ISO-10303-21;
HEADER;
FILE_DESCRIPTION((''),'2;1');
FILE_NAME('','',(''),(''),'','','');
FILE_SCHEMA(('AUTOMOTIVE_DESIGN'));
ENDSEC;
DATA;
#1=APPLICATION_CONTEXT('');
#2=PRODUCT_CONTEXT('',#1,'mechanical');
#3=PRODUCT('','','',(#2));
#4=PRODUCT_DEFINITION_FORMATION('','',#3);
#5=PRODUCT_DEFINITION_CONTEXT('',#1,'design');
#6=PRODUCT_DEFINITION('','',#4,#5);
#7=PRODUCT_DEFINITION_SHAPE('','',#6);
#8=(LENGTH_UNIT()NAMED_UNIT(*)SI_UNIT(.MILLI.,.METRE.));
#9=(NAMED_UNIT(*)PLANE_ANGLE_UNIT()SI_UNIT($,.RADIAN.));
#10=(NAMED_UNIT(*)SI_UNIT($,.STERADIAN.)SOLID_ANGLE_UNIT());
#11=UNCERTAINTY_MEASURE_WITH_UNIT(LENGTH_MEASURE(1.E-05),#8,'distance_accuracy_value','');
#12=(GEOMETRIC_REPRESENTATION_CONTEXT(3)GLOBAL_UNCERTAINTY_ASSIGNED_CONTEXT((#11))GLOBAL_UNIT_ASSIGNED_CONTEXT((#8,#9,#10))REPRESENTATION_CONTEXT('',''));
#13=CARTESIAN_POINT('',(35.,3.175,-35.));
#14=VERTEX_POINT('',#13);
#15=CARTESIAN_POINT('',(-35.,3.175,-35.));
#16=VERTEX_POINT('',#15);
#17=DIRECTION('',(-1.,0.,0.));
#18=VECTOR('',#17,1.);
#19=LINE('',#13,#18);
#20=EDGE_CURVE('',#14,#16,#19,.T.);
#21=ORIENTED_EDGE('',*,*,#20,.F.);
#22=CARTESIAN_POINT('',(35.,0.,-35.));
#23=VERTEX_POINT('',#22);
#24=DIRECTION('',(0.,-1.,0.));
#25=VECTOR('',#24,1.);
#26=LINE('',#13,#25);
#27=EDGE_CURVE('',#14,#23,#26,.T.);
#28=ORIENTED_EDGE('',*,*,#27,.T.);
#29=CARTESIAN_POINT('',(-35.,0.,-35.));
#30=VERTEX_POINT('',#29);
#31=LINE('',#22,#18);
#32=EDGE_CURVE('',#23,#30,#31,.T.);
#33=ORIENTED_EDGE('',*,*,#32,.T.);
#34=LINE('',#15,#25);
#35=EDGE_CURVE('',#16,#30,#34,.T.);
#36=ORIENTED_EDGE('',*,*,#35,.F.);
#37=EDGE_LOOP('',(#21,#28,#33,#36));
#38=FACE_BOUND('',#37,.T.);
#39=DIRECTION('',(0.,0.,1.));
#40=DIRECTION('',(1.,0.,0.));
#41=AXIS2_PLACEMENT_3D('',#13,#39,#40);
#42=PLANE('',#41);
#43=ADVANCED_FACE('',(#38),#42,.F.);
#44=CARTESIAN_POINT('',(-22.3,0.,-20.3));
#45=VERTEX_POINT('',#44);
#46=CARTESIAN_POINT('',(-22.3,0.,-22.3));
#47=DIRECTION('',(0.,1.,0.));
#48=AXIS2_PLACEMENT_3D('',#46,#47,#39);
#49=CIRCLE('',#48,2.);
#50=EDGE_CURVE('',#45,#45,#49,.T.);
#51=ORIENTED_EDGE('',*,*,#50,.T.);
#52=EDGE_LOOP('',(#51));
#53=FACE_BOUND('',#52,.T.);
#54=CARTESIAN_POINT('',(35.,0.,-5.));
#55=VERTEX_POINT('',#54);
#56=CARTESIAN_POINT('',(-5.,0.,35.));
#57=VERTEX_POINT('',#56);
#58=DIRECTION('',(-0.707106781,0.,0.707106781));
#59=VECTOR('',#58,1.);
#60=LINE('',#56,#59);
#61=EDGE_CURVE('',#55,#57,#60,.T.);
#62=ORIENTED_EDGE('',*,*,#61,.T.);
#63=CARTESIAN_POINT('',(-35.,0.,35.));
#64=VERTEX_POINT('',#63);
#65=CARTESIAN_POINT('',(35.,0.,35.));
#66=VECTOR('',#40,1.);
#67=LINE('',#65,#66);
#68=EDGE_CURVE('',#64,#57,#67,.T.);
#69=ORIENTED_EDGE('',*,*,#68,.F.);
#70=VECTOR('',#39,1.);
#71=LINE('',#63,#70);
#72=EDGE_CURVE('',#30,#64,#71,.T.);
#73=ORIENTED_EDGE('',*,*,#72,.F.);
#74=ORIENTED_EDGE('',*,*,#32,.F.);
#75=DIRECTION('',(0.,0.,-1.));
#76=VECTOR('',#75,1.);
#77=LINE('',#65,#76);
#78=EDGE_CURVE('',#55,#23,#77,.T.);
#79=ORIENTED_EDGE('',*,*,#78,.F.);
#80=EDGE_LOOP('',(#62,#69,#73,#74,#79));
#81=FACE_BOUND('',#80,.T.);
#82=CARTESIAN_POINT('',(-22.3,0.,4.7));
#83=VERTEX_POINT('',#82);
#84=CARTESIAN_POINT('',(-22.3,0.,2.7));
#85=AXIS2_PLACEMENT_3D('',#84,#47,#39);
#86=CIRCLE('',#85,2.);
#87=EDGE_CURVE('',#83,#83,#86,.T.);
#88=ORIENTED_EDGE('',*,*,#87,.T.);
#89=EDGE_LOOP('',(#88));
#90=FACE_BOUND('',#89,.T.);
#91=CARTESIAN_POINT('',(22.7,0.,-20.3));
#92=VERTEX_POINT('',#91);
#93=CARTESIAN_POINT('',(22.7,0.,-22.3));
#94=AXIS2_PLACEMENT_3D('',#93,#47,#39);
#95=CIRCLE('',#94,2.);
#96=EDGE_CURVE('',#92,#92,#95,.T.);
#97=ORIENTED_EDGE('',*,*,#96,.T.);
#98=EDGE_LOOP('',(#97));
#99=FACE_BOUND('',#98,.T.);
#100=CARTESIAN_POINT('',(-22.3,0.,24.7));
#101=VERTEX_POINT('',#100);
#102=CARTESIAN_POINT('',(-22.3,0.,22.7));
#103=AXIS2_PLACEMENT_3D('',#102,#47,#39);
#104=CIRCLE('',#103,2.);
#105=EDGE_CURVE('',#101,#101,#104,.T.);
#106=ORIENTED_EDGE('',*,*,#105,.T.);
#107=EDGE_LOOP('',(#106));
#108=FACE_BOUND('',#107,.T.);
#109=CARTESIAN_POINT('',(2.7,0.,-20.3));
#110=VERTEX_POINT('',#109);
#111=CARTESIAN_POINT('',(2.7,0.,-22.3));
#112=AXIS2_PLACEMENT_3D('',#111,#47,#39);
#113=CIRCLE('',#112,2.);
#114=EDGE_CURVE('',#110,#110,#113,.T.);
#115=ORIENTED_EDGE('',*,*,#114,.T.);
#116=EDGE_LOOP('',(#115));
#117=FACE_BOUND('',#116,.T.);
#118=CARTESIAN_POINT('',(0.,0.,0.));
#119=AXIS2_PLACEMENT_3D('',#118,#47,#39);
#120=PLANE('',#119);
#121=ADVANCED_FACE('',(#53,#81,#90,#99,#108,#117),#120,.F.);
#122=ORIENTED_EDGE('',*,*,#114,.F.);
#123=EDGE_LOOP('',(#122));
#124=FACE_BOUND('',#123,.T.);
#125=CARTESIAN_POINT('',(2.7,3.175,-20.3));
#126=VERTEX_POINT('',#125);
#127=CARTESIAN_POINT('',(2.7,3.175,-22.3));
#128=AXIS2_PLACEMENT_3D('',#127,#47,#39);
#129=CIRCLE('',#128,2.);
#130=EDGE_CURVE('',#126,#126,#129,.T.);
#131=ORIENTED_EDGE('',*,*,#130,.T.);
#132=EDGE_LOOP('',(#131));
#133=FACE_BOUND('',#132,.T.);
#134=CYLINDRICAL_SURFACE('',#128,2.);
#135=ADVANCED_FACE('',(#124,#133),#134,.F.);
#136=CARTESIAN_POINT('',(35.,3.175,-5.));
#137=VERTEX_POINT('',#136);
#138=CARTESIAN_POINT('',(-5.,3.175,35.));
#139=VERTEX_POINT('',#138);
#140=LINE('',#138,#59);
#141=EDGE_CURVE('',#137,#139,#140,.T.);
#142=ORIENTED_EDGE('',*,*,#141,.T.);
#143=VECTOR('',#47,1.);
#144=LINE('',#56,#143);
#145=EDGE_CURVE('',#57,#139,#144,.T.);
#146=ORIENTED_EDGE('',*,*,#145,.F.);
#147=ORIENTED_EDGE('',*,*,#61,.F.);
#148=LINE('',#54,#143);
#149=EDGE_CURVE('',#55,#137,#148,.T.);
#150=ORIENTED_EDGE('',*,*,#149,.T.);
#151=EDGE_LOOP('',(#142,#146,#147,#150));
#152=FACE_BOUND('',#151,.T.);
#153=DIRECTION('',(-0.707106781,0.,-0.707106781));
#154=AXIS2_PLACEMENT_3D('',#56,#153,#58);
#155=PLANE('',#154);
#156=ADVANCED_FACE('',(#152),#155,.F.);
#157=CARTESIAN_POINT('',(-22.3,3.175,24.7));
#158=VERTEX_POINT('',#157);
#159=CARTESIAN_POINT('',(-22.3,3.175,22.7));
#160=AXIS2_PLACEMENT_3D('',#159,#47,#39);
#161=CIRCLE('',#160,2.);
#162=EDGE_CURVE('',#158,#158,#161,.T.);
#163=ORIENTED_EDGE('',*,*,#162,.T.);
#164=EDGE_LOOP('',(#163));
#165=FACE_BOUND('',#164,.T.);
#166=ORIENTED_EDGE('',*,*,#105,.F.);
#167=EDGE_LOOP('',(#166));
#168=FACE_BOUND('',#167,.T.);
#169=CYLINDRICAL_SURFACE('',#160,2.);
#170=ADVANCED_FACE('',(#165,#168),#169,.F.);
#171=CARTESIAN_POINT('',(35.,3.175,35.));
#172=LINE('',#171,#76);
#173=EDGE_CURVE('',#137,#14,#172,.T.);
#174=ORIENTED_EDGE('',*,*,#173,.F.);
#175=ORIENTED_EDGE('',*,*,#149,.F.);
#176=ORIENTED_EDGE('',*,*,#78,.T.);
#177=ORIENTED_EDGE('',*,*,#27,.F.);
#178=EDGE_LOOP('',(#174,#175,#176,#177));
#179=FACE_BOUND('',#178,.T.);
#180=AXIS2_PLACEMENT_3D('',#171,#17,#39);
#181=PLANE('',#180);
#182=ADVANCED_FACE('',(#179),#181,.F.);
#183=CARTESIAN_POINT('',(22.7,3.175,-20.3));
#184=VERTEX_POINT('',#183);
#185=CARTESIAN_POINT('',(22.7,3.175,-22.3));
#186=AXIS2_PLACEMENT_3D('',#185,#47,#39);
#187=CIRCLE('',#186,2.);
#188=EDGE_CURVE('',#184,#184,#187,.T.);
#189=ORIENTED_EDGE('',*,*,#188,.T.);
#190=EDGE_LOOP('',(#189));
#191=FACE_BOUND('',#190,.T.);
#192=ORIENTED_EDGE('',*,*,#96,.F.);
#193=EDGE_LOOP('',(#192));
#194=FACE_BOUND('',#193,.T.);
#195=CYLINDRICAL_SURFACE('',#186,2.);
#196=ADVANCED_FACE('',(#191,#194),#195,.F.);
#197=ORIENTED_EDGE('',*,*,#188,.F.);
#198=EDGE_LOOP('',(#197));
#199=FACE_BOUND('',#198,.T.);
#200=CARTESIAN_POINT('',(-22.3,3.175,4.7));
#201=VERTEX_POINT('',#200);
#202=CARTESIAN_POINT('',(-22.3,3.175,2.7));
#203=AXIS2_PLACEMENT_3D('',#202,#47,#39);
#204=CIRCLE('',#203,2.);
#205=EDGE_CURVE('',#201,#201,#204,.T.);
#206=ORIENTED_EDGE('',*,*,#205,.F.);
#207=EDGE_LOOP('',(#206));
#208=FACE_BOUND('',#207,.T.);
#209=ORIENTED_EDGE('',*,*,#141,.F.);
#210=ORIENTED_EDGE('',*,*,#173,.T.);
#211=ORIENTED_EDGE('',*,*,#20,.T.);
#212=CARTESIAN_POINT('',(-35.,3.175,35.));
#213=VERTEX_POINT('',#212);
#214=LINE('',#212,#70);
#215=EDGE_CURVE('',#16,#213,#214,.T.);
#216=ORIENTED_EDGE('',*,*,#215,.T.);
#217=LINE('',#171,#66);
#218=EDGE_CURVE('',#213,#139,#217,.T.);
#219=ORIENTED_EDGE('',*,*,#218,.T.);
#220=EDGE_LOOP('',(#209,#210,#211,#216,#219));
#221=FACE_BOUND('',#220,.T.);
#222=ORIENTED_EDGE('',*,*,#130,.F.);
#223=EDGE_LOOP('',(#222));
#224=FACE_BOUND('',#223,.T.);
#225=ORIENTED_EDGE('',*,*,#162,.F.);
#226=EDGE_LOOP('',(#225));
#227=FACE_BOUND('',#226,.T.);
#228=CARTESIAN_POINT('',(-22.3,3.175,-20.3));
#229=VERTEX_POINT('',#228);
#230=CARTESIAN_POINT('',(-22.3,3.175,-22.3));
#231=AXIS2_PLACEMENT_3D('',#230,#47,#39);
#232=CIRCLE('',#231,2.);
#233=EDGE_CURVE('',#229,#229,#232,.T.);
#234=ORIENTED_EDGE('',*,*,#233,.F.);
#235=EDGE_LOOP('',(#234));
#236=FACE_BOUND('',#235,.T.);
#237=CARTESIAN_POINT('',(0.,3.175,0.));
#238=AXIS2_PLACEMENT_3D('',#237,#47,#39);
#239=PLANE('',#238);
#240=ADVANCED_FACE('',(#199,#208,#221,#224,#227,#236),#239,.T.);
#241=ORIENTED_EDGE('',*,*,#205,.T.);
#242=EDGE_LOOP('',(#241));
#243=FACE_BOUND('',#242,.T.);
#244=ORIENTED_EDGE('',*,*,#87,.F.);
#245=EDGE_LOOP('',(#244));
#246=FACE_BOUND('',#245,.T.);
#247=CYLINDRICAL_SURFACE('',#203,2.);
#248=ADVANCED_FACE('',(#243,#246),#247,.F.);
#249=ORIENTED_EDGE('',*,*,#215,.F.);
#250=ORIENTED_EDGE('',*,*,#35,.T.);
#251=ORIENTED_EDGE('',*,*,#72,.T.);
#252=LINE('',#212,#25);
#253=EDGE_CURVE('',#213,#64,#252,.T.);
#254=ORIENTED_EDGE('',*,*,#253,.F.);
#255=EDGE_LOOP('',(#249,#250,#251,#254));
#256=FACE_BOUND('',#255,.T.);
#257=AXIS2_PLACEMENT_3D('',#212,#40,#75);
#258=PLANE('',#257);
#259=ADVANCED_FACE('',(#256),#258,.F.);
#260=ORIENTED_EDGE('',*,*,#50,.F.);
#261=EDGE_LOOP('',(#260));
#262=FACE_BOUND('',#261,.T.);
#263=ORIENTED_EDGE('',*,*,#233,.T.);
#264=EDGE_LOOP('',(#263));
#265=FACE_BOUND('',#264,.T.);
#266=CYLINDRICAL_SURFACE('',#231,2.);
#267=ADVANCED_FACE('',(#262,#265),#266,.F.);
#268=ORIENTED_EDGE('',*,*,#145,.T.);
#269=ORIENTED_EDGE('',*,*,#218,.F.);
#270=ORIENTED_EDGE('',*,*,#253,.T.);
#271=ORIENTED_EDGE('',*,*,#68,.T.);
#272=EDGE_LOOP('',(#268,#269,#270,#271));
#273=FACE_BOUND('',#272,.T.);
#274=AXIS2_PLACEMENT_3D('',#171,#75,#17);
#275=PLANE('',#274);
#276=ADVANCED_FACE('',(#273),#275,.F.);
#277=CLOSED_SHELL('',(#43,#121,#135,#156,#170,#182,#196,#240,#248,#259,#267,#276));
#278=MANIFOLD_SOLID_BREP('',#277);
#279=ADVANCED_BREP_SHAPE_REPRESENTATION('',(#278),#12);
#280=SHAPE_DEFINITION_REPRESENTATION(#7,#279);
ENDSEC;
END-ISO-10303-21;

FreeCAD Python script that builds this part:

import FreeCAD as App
import Part
import Sketcher
Q = App.Units.Quantity


def add_polygon(sketch, points):
    """Adds a closed chain of lines whose ends are joined by coincident constraints."""
    first, n = sketch.GeometryCount, len(points)
    for a, b in zip(points, points[1:] + points[:1]):
        sketch.addGeometry(Part.LineSegment(App.Vector(*a, 0), App.Vector(*b, 0)), False)
    for i in range(n):
        sketch.addConstraint(Sketcher.Constraint("Coincident", first + i, 2, first + (i + 1) % n, 1))

doc = App.newDocument("Part")
body = doc.addObject("PartDesign::Body", "Body")

# Sketch on XZ plane
sketch1 = doc.addObject("Sketcher::SketchObject", "Sketch")
body.addObject(sketch1)
sketch1.AttachmentSupport = (doc.XZ_Plane, [""])
sketch1.MapMode = "FlatFace"
add_polygon(sketch1, [(-35, -35), (-35, 35), (35, 35), (35, -35)])  # lines 0-3
sketch1.addConstraint([
    Sketcher.Constraint("Vertical", 0),
    Sketcher.Constraint("Horizontal", 1),
    Sketcher.Constraint("Vertical", 2),
    Sketcher.Constraint("Horizontal", 3),
    Sketcher.Constraint("Symmetric", 0, 2, 2, 2, -1, 1),
    Sketcher.Constraint("Equal", 3, 0),
    Sketcher.Constraint("DistanceX", 1, 1, 1, 2, Q("70 mm")),
])
pad1 = doc.addObject("PartDesign::Pad", "Pad")
body.addObject(pad1)
pad1.Profile = sketch1
pad1.Length = 3.175
pad1.Reversed = True

# Sketch on XZ plane
sketch2 = doc.addObject("Sketcher::SketchObject", "Sketch001")
body.addObject(sketch2)
sketch2.AttachmentSupport = (doc.XZ_Plane, [""])
sketch2.MapMode = "FlatFace"
sketch2.AttachmentOffset = App.Placement(App.Vector(0, 0, -3.175), App.Rotation())
sketch2.addGeometry([
    Part.Circle(App.Vector(-22.3, -22.3, 0), App.Vector(0, 0, 1), 2),  # 0
    Part.Circle(App.Vector(22.7, -22.3, 0), App.Vector(0, 0, 1), 2),  # 1
    Part.Circle(App.Vector(2.7, -22.3, 0), App.Vector(0, 0, 1), 2),  # 2
    Part.Circle(App.Vector(-22.3, 2.7, 0), App.Vector(0, 0, 1), 2),  # 3
    Part.Circle(App.Vector(-22.3, 22.7, 0), App.Vector(0, 0, 1), 2),  # 4
], False)
sketch2.addConstraint([
    Sketcher.Constraint("Equal", 0, 1),
    Sketcher.Constraint("Equal", 1, 2),
    Sketcher.Constraint("Equal", 2, 3),
    Sketcher.Constraint("Equal", 3, 4),
    Sketcher.Constraint("Horizontal", 0, 3, 1, 3),
    Sketcher.Constraint("Horizontal", 1, 3, 2, 3),
    Sketcher.Constraint("Vertical", 0, 3, 3, 3),
    Sketcher.Constraint("Vertical", 3, 3, 4, 3),
    Sketcher.Constraint("Diameter", 0, Q("4 mm")),
    Sketcher.Constraint("DistanceX", 0, 3, 1, 3, Q("45 mm")),
    Sketcher.Constraint("DistanceX", 2, 3, 1, 3, Q("20 mm")),
    Sketcher.Constraint("DistanceY", 0, 3, 3, 3, Q("25 mm")),
    Sketcher.Constraint("DistanceY", 3, 3, 4, 3, Q("20 mm")),
    Sketcher.Constraint("DistanceX", 0, 3, -1, 1, Q("22.3 mm")),
    Sketcher.Constraint("DistanceY", 0, 3, -1, 1, Q("22.3 mm")),
])
doc.recompute()
hole = doc.addObject("PartDesign::Hole", "Hole")
body.addObject(hole)
hole.Profile = sketch2
hole.ThreadType = "None"
hole.Diameter = 4
hole.DepthType = "ThroughAll"
hole.Reversed = True

# Sketch on XZ plane
sketch3 = doc.addObject("Sketcher::SketchObject", "Sketch002")
body.addObject(sketch3)
sketch3.AttachmentSupport = (doc.XZ_Plane, [""])
sketch3.MapMode = "FlatFace"
sketch3.AttachmentOffset = App.Placement(App.Vector(0, 0, -3.175), App.Rotation())
add_polygon(sketch3, [(35, -5), (-5, 35), (35, 35)])  # lines 0-2
sketch3.addConstraint([
    Sketcher.Constraint("Horizontal", 1),
    Sketcher.Constraint("Vertical", 2),
    Sketcher.Constraint("Equal", 1, 2),
    Sketcher.Constraint("DistanceX", 1, 1, 1, 2, Q("40 mm")),
    Sketcher.Constraint("DistanceX", 0, 2, -1, 1, Q("5 mm")),
    Sketcher.Constraint("DistanceY", -1, 1, 0, 2, Q("35 mm")),
])
pocket1 = doc.addObject("PartDesign::Pocket", "Pocket")
body.addObject(pocket1)
pocket1.Profile = sketch3
pocket1.Type = "ThroughAll"
pocket1.Reversed = True

doc.recompute()
